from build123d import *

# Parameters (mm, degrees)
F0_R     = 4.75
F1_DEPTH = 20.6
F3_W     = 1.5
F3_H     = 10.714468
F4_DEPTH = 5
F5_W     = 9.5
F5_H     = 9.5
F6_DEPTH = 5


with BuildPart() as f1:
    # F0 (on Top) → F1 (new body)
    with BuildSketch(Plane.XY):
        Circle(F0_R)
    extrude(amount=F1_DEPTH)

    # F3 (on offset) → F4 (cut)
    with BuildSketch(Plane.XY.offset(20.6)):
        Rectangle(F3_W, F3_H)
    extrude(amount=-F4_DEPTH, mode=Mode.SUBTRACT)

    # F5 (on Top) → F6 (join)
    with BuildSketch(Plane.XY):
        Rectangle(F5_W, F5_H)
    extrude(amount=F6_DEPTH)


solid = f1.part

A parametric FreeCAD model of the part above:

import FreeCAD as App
import Part
import Sketcher
from FreeCAD import Vector


def add_polygon(sketch, points):
    """Adds a closed chain of lines whose ends are joined by coincident constraints."""
    first, n = sketch.GeometryCount, len(points)
    for a, b in zip(points, points[1:] + points[:1]):
        sketch.addGeometry(Part.LineSegment(App.Vector(*a, 0), App.Vector(*b, 0)), False)
    for i in range(n):
        sketch.addConstraint(Sketcher.Constraint("Coincident", first + i, 2, first + (i + 1) % n, 1))

doc = App.newDocument("Part")
body = doc.addObject("PartDesign::Body", "Body")

sketch1 = doc.addObject("Sketcher::SketchObject", "Sketch")
body.addObject(sketch1)
sketch1.AttachmentSupport = (doc.XY_Plane, [""])
sketch1.MapMode = "FlatFace"
sketch1.addGeometry(Part.Circle(Vector(0, 0, 0), Vector(0, 0, 1), 4.8), False)
sketch1.addConstraint([
    Sketcher.Constraint("Coincident", 0, 3, -1, 1),
    Sketcher.Constraint("Diameter", 0, 9.5),
])
pad1 = doc.addObject("PartDesign::Pad", "Pad")
body.addObject(pad1)
pad1.Profile = sketch1
pad1.Length = 20.6

sketch2 = doc.addObject("Sketcher::SketchObject", "Sketch001")
body.addObject(sketch2)
sketch2.AttachmentSupport = (doc.XY_Plane, [""])
sketch2.MapMode = "FlatFace"
sketch2.AttachmentOffset = App.Placement(Vector(0, 0, 20.6), App.Rotation())
add_polygon(sketch2, [(-0.8, 5.4), (-0.8, -5.4), (0.8, -5.4), (0.8, 5.4)])
sketch2.addConstraint([
    Sketcher.Constraint("Vertical", 0),
    Sketcher.Constraint("Horizontal", 1),
    Sketcher.Constraint("Vertical", 2),
    Sketcher.Constraint("Horizontal", 3),
    Sketcher.Constraint("Symmetric", 0, 2, 2, 2, -1, 1),
    Sketcher.Constraint("DistanceX", 1, 1, 1, 2, 1.5),
    Sketcher.Constraint("DistanceY", 0, 2, 0, 1, 10.714468),
])
pocket1 = doc.addObject("PartDesign::Pocket", "Pocket")
body.addObject(pocket1)
pocket1.Profile = sketch2
pocket1.Length = 5

sketch3 = doc.addObject("Sketcher::SketchObject", "Sketch002")
body.addObject(sketch3)
sketch3.AttachmentSupport = (doc.XY_Plane, [""])
sketch3.MapMode = "FlatFace"
add_polygon(sketch3, [(-5, 5), (-5, -5), (5, -5), (5, 5)])
sketch3.addConstraint([
    Sketcher.Constraint("Vertical", 0),
    Sketcher.Constraint("Horizontal", 1),
    Sketcher.Constraint("Vertical", 2),
    Sketcher.Constraint("Horizontal", 3),
    Sketcher.Constraint("Symmetric", 0, 2, 2, 2, -1, 1),
    Sketcher.Constraint("Equal", 3, 0),
    Sketcher.Constraint("DistanceX", 1, 1, 1, 2, 9.5),
])
pad2 = doc.addObject("PartDesign::Pad", "Pad001")
body.addObject(pad2)
pad2.Profile = sketch3
pad2.Length = 5

doc.recompute()
